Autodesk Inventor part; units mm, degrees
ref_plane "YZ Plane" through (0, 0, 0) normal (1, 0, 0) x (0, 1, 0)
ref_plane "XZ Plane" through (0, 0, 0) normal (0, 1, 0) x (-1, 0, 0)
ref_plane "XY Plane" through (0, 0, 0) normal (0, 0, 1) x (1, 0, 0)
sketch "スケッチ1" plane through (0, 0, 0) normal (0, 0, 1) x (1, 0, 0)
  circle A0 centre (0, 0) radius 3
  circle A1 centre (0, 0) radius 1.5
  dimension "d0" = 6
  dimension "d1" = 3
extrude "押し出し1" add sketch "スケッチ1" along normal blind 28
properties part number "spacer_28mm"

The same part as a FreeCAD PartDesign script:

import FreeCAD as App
import Part
import Sketcher
Q = App.Units.Quantity

doc = App.newDocument("Part")
body = doc.addObject("PartDesign::Body", "Body")

# Sketch on XY plane
sketch1 = body.newObject("Sketcher::SketchObject", "Sketch")
sketch1.AttachmentSupport = (doc.getObject("XY_Plane"), [""])
sketch1.MapMode = "FlatFace"
sketch1.addGeometry([
    Part.Circle(App.Vector(0, 0, 0), App.Vector(0, 0, 1), 3),
    Part.Circle(App.Vector(0, 0, 0), App.Vector(0, 0, 1), 1.5),
], False)
sketch1.addConstraint([
    Sketcher.Constraint("Coincident", 0, 3, -1, 1),
    Sketcher.Constraint("Coincident", 1, 3, -1, 1),
    Sketcher.Constraint("Diameter", 0, Q("6 mm")),
    Sketcher.Constraint("Diameter", 1, Q("3 mm")),
])
pad1 = body.newObject("PartDesign::Pad", "Pad")
pad1.Profile = sketch1
pad1.Length = 28

doc.recompute()
